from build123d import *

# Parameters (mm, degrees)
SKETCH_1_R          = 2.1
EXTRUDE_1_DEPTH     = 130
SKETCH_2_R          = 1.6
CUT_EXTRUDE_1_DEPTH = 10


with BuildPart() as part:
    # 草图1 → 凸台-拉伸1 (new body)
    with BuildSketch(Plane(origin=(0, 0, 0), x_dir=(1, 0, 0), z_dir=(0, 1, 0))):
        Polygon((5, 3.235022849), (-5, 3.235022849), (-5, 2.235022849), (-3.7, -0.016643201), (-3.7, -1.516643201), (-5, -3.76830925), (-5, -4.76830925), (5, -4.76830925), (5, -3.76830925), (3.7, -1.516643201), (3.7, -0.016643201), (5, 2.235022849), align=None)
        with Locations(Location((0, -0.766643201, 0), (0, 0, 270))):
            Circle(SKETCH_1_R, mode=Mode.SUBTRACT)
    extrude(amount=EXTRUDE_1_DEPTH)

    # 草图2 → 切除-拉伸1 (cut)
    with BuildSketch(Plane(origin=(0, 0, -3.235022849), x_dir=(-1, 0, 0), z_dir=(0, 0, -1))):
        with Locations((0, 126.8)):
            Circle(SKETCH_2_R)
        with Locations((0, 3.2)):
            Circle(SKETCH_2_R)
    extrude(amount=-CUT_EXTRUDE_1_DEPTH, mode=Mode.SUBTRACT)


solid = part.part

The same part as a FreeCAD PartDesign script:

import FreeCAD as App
import Part
import Sketcher
Q = App.Units.Quantity

doc = App.newDocument("Part")
body = doc.addObject("PartDesign::Body", "Body")

sketch1 = body.newObject("Sketcher::SketchObject", "Sketch")
sketch1.AttachmentSupport = (doc.getObject("XZ_Plane"), [""])
sketch1.MapMode = "FlatFace"
sketch1.addGeometry([
    Part.LineSegment(App.Vector(5, -3.235023, 0), App.Vector(-5, -3.235023, 0)),
    Part.LineSegment(App.Vector(-5, -3.235023, 0), App.Vector(-5, -2.235023, 0)),
    Part.LineSegment(App.Vector(-5, -2.235023, 0), App.Vector(-3.7, 0.016643, 0)),
    Part.LineSegment(App.Vector(-3.7, 0.016643, 0), App.Vector(-3.7, 1.516643, 0)),
    Part.LineSegment(App.Vector(-3.7, 1.516643, 0), App.Vector(-5, 3.768309, 0)),
    Part.LineSegment(App.Vector(-5, 3.768309, 0), App.Vector(-5, 4.768309, 0)),
    Part.LineSegment(App.Vector(-5, 4.768309, 0), App.Vector(5, 4.768309, 0)),
    Part.LineSegment(App.Vector(5, 4.768309, 0), App.Vector(5, 3.768309, 0)),
    Part.LineSegment(App.Vector(5, 3.768309, 0), App.Vector(3.7, 1.516643, 0)),
    Part.LineSegment(App.Vector(3.7, 1.516643, 0), App.Vector(3.7, 0.016643, 0)),
    Part.LineSegment(App.Vector(3.7, 0.016643, 0), App.Vector(5, -2.235023, 0)),
    Part.LineSegment(App.Vector(5, -2.235023, 0), App.Vector(5, -3.235023, 0)),
    Part.Circle(App.Vector(0, 0.766643, 0), App.Vector(0, 0, 1), 2.1),
], False)
sketch1.addConstraint([
    Sketcher.Constraint("Coincident", 0, 2, 1, 1),
    Sketcher.Constraint("Coincident", 1, 2, 2, 1),
    Sketcher.Constraint("Coincident", 2, 2, 3, 1),
    Sketcher.Constraint("Coincident", 3, 2, 4, 1),
    Sketcher.Constraint("Coincident", 4, 2, 5, 1),
    Sketcher.Constraint("Coincident", 5, 2, 6, 1),
    Sketcher.Constraint("Coincident", 6, 2, 7, 1),
    Sketcher.Constraint("Coincident", 7, 2, 8, 1),
    Sketcher.Constraint("Coincident", 8, 2, 9, 1),
    Sketcher.Constraint("Coincident", 9, 2, 10, 1),
    Sketcher.Constraint("Coincident", 10, 2, 11, 1),
    Sketcher.Constraint("Coincident", 11, 2, 0, 1),
    Sketcher.Constraint("Horizontal", 0),
    Sketcher.Constraint("Vertical", 1),
    Sketcher.Constraint("Vertical", 3),
    Sketcher.Constraint("Vertical", 5),
    Sketcher.Constraint("Horizontal", 6),
    Sketcher.Constraint("Vertical", 7),
    Sketcher.Constraint("Vertical", 9),
    Sketcher.Constraint("Vertical", 11),
    Sketcher.Constraint("Symmetric", 4, 2, 7, 2, -2),
    Sketcher.Constraint("Symmetric", 3, 2, 8, 2, -2),
    Sketcher.Constraint("Symmetric", 1, 2, 10, 2, -2),
    Sketcher.Constraint("PointOnObject", 12, 3, -2),
    Sketcher.Constraint("Parallel", 2, 8),
    Sketcher.Constraint("Parallel", 4, 10),
    Sketcher.Constraint("Vertical", 1, 2, 4, 2),
    Sketcher.Constraint("Equal", 1, 5),
    Sketcher.Constraint("Diameter", 12, Q("4.2 mm")),
    Sketcher.Constraint("DistanceX", 0, 2, 0, 1, Q("10 mm")),
    Sketcher.Constraint("DistanceY", 1, 1, 1, 2, Q("1 mm")),
    Sketcher.Constraint("Angle", 2, Q("60 deg")),
    Sketcher.Constraint("DistanceY", 3, 1, 3, 2, Q("1.5 mm")),
    Sketcher.Constraint("Distance", 2, Q("2.6 mm")),
    Sketcher.Constraint("DistanceY", 2, 2, 12, 3, Q("0.75 mm")),
    Sketcher.Constraint("DistanceY", -1, 1, 4, 2, Q("3.768309 mm")),
])
pad1 = body.newObject("PartDesign::Pad", "Pad")
pad1.Profile = sketch1
pad1.Length = 130
pad1.Reversed = True

sketch2 = body.newObject("Sketcher::SketchObject", "Sketch001")
sketch2.AttachmentSupport = (doc.getObject("XY_Plane"), [""])
sketch2.MapMode = "FlatFace"
sketch2.AttachmentOffset = App.Placement(App.Vector(0, 0, -3.235023), App.Rotation())
sketch2.addGeometry([
    Part.Circle(App.Vector(0, 126.8, 0), App.Vector(0, 0, 1), 1.6),
    Part.Circle(App.Vector(0, 3.2, 0), App.Vector(0, 0, 1), 1.6),
], False)
sketch2.addConstraint([
    Sketcher.Constraint("Equal", 0, 1),
    Sketcher.Constraint("PointOnObject", 0, 3, -2),
    Sketcher.Constraint("PointOnObject", 1, 3, -2),
    Sketcher.Constraint("Diameter", 0, Q("3.2 mm")),
    Sketcher.Constraint("DistanceY", -1, 1, 0, 3, Q("126.8 mm")),
    Sketcher.Constraint("DistanceY", -1, 1, 1, 3, Q("3.2 mm")),
])
pocket1 = body.newObject("PartDesign::Pocket", "Pocket")
pocket1.Profile = sketch2
pocket1.Length = 10
pocket1.Reversed = True

doc.recompute()
